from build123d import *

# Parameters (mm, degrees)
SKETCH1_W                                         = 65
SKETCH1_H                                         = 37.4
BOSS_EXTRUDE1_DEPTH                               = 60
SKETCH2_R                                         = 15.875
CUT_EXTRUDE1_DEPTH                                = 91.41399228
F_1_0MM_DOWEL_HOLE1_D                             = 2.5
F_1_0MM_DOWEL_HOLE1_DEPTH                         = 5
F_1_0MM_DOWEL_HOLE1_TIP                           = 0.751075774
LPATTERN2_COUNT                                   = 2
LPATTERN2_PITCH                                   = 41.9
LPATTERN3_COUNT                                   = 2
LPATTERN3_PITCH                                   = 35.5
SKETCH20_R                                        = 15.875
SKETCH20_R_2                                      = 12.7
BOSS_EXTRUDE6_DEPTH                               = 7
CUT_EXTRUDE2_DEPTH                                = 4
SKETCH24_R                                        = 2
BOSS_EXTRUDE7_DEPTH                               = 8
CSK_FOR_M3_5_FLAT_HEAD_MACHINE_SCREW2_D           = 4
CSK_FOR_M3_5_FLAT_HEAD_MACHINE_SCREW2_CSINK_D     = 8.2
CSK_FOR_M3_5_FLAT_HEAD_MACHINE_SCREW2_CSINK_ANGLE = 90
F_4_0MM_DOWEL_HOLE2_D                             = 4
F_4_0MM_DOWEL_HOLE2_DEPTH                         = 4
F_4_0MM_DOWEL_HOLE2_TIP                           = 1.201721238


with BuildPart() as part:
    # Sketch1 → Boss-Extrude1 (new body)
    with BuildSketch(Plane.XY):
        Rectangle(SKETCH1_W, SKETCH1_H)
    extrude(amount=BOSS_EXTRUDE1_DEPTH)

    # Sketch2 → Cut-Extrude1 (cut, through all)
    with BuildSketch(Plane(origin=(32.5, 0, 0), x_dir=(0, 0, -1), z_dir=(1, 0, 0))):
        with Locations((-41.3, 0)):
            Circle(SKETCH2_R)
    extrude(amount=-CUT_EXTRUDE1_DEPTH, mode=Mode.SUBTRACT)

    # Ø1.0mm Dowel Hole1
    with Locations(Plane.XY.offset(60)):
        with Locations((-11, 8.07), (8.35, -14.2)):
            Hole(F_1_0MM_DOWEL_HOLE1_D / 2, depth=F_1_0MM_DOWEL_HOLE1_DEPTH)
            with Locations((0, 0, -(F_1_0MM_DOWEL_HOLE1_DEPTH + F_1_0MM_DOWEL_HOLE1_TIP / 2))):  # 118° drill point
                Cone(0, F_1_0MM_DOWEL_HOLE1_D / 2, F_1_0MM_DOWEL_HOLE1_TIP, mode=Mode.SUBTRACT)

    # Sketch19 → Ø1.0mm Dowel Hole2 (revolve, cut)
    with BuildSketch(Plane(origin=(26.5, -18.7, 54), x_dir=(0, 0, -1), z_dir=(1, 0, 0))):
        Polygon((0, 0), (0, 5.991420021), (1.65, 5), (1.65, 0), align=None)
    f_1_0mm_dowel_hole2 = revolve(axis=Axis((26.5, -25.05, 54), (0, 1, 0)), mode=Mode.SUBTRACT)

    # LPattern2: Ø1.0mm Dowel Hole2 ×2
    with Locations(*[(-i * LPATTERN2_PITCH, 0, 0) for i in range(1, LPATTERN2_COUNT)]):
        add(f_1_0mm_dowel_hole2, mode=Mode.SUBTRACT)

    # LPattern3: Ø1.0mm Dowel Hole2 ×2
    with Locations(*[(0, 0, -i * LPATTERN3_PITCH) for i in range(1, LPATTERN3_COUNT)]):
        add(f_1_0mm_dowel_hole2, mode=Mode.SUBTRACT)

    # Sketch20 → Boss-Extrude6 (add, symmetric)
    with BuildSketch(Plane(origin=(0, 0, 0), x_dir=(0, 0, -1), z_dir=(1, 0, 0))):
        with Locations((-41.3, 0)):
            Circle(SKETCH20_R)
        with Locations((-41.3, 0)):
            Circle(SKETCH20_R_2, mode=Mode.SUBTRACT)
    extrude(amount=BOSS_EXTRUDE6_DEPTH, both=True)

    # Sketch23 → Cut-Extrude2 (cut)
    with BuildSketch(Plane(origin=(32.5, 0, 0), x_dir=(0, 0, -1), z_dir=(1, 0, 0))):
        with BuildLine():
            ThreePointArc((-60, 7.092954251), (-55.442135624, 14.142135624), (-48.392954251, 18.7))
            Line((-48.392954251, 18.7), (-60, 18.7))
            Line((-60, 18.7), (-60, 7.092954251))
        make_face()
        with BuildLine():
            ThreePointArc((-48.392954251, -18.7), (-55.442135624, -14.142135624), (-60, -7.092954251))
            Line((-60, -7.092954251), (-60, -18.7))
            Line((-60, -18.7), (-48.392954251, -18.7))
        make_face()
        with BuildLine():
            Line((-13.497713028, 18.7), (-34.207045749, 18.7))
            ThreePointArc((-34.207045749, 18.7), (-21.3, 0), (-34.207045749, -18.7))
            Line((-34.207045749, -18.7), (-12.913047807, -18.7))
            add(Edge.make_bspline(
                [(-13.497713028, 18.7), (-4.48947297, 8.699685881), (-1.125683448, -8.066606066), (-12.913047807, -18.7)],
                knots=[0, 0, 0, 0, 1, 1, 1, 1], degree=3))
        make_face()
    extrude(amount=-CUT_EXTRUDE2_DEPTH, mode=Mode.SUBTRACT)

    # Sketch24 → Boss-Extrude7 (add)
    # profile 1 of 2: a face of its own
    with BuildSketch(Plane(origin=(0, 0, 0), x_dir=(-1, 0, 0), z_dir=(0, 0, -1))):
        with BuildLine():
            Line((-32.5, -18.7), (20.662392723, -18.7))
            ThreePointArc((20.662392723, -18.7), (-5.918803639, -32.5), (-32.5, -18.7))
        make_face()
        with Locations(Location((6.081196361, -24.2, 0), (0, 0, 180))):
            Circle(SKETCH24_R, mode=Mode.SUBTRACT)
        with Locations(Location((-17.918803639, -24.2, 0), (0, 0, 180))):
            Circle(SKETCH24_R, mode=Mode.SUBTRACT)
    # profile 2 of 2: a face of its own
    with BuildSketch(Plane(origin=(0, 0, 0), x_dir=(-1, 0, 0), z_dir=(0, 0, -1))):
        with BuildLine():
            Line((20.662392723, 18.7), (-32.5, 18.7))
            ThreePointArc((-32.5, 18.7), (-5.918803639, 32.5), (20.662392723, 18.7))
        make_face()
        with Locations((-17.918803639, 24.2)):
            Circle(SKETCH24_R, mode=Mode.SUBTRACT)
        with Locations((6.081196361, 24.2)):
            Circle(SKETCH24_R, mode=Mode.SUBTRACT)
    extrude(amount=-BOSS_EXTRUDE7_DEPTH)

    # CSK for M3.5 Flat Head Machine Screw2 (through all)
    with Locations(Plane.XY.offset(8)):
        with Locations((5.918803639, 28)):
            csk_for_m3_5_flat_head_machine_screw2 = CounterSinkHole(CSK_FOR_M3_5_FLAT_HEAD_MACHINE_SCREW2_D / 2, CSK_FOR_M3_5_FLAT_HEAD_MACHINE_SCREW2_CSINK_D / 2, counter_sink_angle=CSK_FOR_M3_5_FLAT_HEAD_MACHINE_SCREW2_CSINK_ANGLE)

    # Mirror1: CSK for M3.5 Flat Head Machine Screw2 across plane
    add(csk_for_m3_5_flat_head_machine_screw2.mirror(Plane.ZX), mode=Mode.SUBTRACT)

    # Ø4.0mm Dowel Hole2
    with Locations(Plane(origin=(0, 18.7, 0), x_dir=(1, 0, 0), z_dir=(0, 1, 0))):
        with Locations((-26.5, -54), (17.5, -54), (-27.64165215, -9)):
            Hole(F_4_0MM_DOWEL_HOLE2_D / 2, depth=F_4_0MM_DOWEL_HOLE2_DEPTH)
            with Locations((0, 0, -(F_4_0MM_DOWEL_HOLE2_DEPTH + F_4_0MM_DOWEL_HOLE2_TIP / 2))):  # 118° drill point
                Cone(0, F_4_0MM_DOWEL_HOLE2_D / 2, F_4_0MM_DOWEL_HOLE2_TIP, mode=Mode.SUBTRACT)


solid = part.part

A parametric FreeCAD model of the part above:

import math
import FreeCAD as App
import Part
import Sketcher
from FreeCAD import Vector
Q = App.Units.Quantity

doc = App.newDocument("Part")
body = doc.addObject("PartDesign::Body", "Body")

sketch1 = doc.addObject("Sketcher::SketchObject", "Sketch")
body.addObject(sketch1)
sketch1.AttachmentSupport = (doc.XY_Plane, [""])
sketch1.MapMode = "FlatFace"
sketch1.addGeometry([
    Part.LineSegment(Vector(-32, 19, 0), Vector(-32, -19, 0)),
    Part.LineSegment(Vector(-32, -19, 0), Vector(32, -19, 0)),
    Part.LineSegment(Vector(32, -19, 0), Vector(32, 19, 0)),
    Part.LineSegment(Vector(32, 19, 0), Vector(-32, 19, 0)),
], False)
sketch1.addConstraint([
    Sketcher.Constraint("Coincident", 0, 2, 1, 1),
    Sketcher.Constraint("Coincident", 1, 2, 2, 1),
    Sketcher.Constraint("Coincident", 2, 2, 3, 1),
    Sketcher.Constraint("Coincident", 3, 2, 0, 1),
    Sketcher.Constraint("Vertical", 0),
    Sketcher.Constraint("Horizontal", 1),
    Sketcher.Constraint("Vertical", 2),
    Sketcher.Constraint("Horizontal", 3),
    Sketcher.Constraint("Symmetric", 0, 2, 2, 2, -1, 1),
    Sketcher.Constraint("DistanceX", 1, 1, 1, 2, 65.0),
    Sketcher.Constraint("DistanceY", 0, 2, 0, 1, 37.4),
])
pad1 = doc.addObject("PartDesign::Pad", "Pad")
body.addObject(pad1)
pad1.Profile = sketch1
pad1.Length = 60

sketch2 = doc.addObject("Sketcher::SketchObject", "Sketch001")
body.addObject(sketch2)
sketch2.AttachmentSupport = (doc.YZ_Plane, [""])
sketch2.MapMode = "FlatFace"
sketch2.AttachmentOffset = App.Placement(Vector(0, 0, 32.5), App.Rotation())
sketch2.addGeometry(Part.Circle(Vector(0, 41, 0), Vector(0, 0, 1), 16), False)
sketch2.addConstraint([
    Sketcher.Constraint("PointOnObject", 0, 3, -2),
    Sketcher.Constraint("Diameter", 0, 31.75),
    Sketcher.Constraint("DistanceY", -1, 1, 0, 3, 41.3),
])
pocket1 = doc.addObject("PartDesign::Pocket", "Pocket")
body.addObject(pocket1)
pocket1.Profile = sketch2
pocket1.Type = "ThroughAll"

sketch3 = doc.addObject("Sketcher::SketchObject", "Sketch002")
body.addObject(sketch3)
sketch3.AttachmentSupport = (doc.XY_Plane, [""])
sketch3.MapMode = "FlatFace"
sketch3.AttachmentOffset = App.Placement(Vector(0, 0, 60), App.Rotation())
sketch3.addGeometry([
    Part.Circle(Vector(-11, 8.1, 0), Vector(0, 0, 1), 1.2),
    Part.Circle(Vector(8.3, -14.2, 0), Vector(0, 0, 1), 1.2),
], False)
sketch3.addConstraint([
    Sketcher.Constraint("Equal", 0, 1),
    Sketcher.Constraint("Diameter", 0, 2.5),
    Sketcher.Constraint("DistanceX", 0, 3, -1, 1, 11.0),
    Sketcher.Constraint("DistanceY", 1, 3, -1, 1, 14.2),
    Sketcher.Constraint("DistanceY", -1, 1, 0, 3, 8.07),
    Sketcher.Constraint("DistanceX", -1, 1, 1, 3, 8.35),
])
doc.recompute()
hole = doc.addObject("PartDesign::Hole", "Hole")
body.addObject(hole)
hole.Profile = sketch3
hole.ThreadType = "None"
hole.Diameter = 2.5
hole.DepthType = "Dimension"
hole.Depth = 5
hole.DrillPoint = "Angled"
hole.DrillPointAngle = 118

sketch4 = doc.addObject("Sketcher::SketchObject", "Sketch003")
body.addObject(sketch4)
sketch4.AttachmentSupport = (doc.YZ_Plane, [""])
sketch4.MapMode = "FlatFace"
sketch4.AttachmentOffset = App.Placement(Vector(0, 0, 26.5), App.Rotation())
sketch4.addGeometry([
    Part.LineSegment(Vector(-12.7, 54, 0), Vector(-18.7, 54, 0)),
    Part.LineSegment(Vector(-18.7, 54, 0), Vector(-18.7, 52.4, 0)),
    Part.LineSegment(Vector(-18.7, 52.4, 0), Vector(-13.7, 52.4, 0)),
    Part.LineSegment(Vector(-13.7, 52.4, 0), Vector(-12.7, 54, 0)),
], False)
sketch4.addGeometry(Part.LineSegment(Vector(-18.7, 54, 0), Vector(-12.7, 54, 0)), True)
sketch4.addConstraint([
    Sketcher.Constraint("Coincident", 0, 2, 1, 1),
    Sketcher.Constraint("Coincident", 1, 2, 2, 1),
    Sketcher.Constraint("Coincident", 2, 2, 3, 1),
    Sketcher.Constraint("Coincident", 3, 2, 0, 1),
    Sketcher.Constraint("Horizontal", 0),
    Sketcher.Constraint("Vertical", 1),
    Sketcher.Constraint("Horizontal", 2),
    Sketcher.Constraint("Horizontal", 4),
    Sketcher.Constraint("Coincident", 4, 1, 0, 2),
    Sketcher.Constraint("Equal", 0, 4),
    Sketcher.Constraint("DistanceX", 2, 1, 2, 2, 5.0),
    Sketcher.Constraint("Angle", 3, Q("59 deg")),
    Sketcher.Constraint("DistanceY", -1, 1, 0, 2, 54.0),
    Sketcher.Constraint("DistanceY", 1, 2, 1, 1, 1.65),
    Sketcher.Constraint("DistanceX", 0, 2, -1, 1, 18.7),
])
groove = doc.addObject("PartDesign::Groove", "Groove")
body.addObject(groove)
groove.Profile = sketch4
groove.ReferenceAxis = (sketch4, ["Axis0"])
groove.Angle = 360
doc.recompute()

linearpattern = doc.addObject("PartDesign::LinearPattern", "LinearPattern")
body.addObject(linearpattern)
linearpattern.Originals = [groove]
linearpattern.Direction = (doc.X_Axis, [""])
linearpattern.Mode = "offset"
linearpattern.Offset = 41.9
linearpattern.Occurrences = 2
linearpattern.Reversed = True
body.Tip = linearpattern
doc.recompute()

linearpattern2 = doc.addObject("PartDesign::LinearPattern", "LinearPattern001")
body.addObject(linearpattern2)
linearpattern2.Originals = [groove]
linearpattern2.Direction = (doc.Z_Axis, [""])
linearpattern2.Mode = "offset"
linearpattern2.Offset = 35.5
linearpattern2.Occurrences = 2
linearpattern2.Reversed = True
body.Tip = linearpattern2

sketch5 = doc.addObject("Sketcher::SketchObject", "Sketch004")
body.addObject(sketch5)
sketch5.AttachmentSupport = (doc.YZ_Plane, [""])
sketch5.MapMode = "FlatFace"
sketch5.addGeometry([
    Part.Circle(Vector(0, 41, 0), Vector(0, 0, 1), 16),
    Part.Circle(Vector(0, 41, 0), Vector(0, 0, 1), 13),
], False)
sketch5.addConstraint([
    Sketcher.Constraint("Coincident", 1, 3, 0, 3),
    Sketcher.Constraint("PointOnObject", 0, 3, -2),
    Sketcher.Constraint("Diameter", 1, 25.4),
    Sketcher.Constraint("Diameter", 0, 31.75),
    Sketcher.Constraint("DistanceY", -1, 1, 0, 3, 41.3),
])
pad2 = doc.addObject("PartDesign::Pad", "Pad001")
body.addObject(pad2)
pad2.Profile = sketch5
pad2.Length = 14
pad2.Midplane = True

sketch6 = doc.addObject("Sketcher::SketchObject", "Sketch005")
body.addObject(sketch6)
sketch6.AttachmentSupport = (doc.YZ_Plane, [""])
sketch6.MapMode = "FlatFace"
sketch6.AttachmentOffset = App.Placement(Vector(0, 0, 32.5), App.Rotation())
sketch6.addGeometry([
    Part.ArcOfCircle(Part.Circle(Vector(0, 41.3, 0), Vector(0, 0, 1), 20), math.radians(20.771855), math.radians(69.228145)),
    Part.LineSegment(Vector(18.7, 48.392954, 0), Vector(18.7, 60, 0)),
    Part.LineSegment(Vector(18.7, 60, 0), Vector(7.092954, 60, 0)),
    Part.ArcOfCircle(Part.Circle(Vector(0, 41.3, 0), Vector(0, 0, 1), 20), math.radians(110.771855), math.radians(159.228145)),
    Part.LineSegment(Vector(-7.092954, 60, 0), Vector(-18.7, 60, 0)),
    Part.LineSegment(Vector(-18.7, 60, 0), Vector(-18.7, 48.392954, 0)),
    Part.LineSegment(Vector(18.7, 13.497713, 0), Vector(18.7, 34.207046, 0)),
    Part.ArcOfCircle(Part.Circle(Vector(0, 41.3, 0), Vector(0, 0, 1), 20), math.radians(-159.228145), math.radians(-20.771855)),
    Part.LineSegment(Vector(-18.7, 34.207046, 0), Vector(-18.7, 12.913048, 0)),
    Part.BSplineCurve([Vector(18.7, 13.497713, 0), Vector(8.699686, 4.489473, 0), Vector(-8.066606, 1.125683, 0), Vector(-18.7, 12.913048, 0)], [4, 4], [0, 1], False, 3, [1, 1, 1, 1], False),
], False)
sketch6.addConstraint([
    Sketcher.Constraint("Block", 9),
    Sketcher.Constraint("Coincident", 0, 1, 1, 1),
    Sketcher.Constraint("Coincident", 1, 2, 2, 1),
    Sketcher.Constraint("Coincident", 2, 2, 0, 2),
    Sketcher.Constraint("Coincident", 3, 1, 4, 1),
    Sketcher.Constraint("Coincident", 4, 2, 5, 1),
    Sketcher.Constraint("Coincident", 5, 2, 3, 2),
    Sketcher.Constraint("Coincident", 6, 2, 7, 2),
    Sketcher.Constraint("Coincident", 7, 1, 8, 1),
    Sketcher.Constraint("Coincident", 8, 2, 9, 2),
    Sketcher.Constraint("Coincident", 9, 1, 6, 1),
    Sketcher.Constraint("Vertical", 1),
    Sketcher.Constraint("Horizontal", 2),
    Sketcher.Constraint("Horizontal", 4),
    Sketcher.Constraint("Vertical", 5),
    Sketcher.Constraint("Vertical", 6),
    Sketcher.Constraint("Vertical", 8),
    Sketcher.Constraint("Coincident", 3, 3, 0, 3),
    Sketcher.Constraint("Coincident", 7, 3, 0, 3),
    Sketcher.Constraint("Equal", 0, 3),
    Sketcher.Constraint("Equal", 3, 7),
    Sketcher.Constraint("Symmetric", 2, 2, 3, 1, -2),
    Sketcher.Constraint("Horizontal", 0, 1, 5, 2),
    Sketcher.Constraint("Vertical", 1, 2, 6, 2),
    Sketcher.Constraint("Equal", 4, 1),
    Sketcher.Constraint("Radius", 0, 20.0),
    Sketcher.Constraint("DistanceY", -1, 1, 1, 2, 60.0),
])
pocket2 = doc.addObject("PartDesign::Pocket", "Pocket001")
body.addObject(pocket2)
pocket2.Profile = sketch6
pocket2.Length = 4

sketch7 = doc.addObject("Sketcher::SketchObject", "Sketch006")
body.addObject(sketch7)
sketch7.AttachmentSupport = (doc.XY_Plane, [""])
sketch7.MapMode = "FlatFace"
sketch7.addGeometry([
    Part.LineSegment(Vector(-20.7, -18.7, 0), Vector(32.5, -18.7, 0)),
    Part.ArcOfCircle(Part.Circle(Vector(5.9, 0, 0), Vector(0, 0, 1), 32.5), math.radians(-145), math.radians(-35)),
    Part.Circle(Vector(-6.1, -24.2, 0), Vector(0, 0, 1), 2),
    Part.Circle(Vector(17.9, -24.2, 0), Vector(0, 0, 1), 2),
    Part.LineSegment(Vector(32.5, 18.7, 0), Vector(-20.7, 18.7, 0)),
    Part.ArcOfCircle(Part.Circle(Vector(5.9, 0, 0), Vector(0, 0, 1), 32.5), math.radians(35), math.radians(145)),
    Part.Circle(Vector(-6.1, 24.2, 0), Vector(0, 0, 1), 2),
    Part.Circle(Vector(17.9, 24.2, 0), Vector(0, 0, 1), 2),
], False)
sketch7.addConstraint([
    Sketcher.Constraint("Coincident", 0, 1, 1, 1),
    Sketcher.Constraint("Coincident", 1, 2, 0, 2),
    Sketcher.Constraint("Coincident", 4, 1, 5, 1),
    Sketcher.Constraint("Coincident", 5, 2, 4, 2),
    Sketcher.Constraint("Horizontal", 0),
    Sketcher.Constraint("Horizontal", 4),
    Sketcher.Constraint("Coincident", 5, 3, 1, 3),
    Sketcher.Constraint("Equal", 2, 3),
    Sketcher.Constraint("Equal", 1, 5),
    Sketcher.Constraint("Equal", 3, 6),
    Sketcher.Constraint("Equal", 6, 7),
    Sketcher.Constraint("Symmetric", 2, 3, 6, 3, -1),
    Sketcher.Constraint("Symmetric", 3, 3, 7, 3, -1),
    Sketcher.Constraint("Symmetric", 1, 2, 4, 1, -1),
    Sketcher.Constraint("Horizontal", 2, 3, 3, 3),
    Sketcher.Constraint("Diameter", 2, 4.0),
    Sketcher.Constraint("Radius", 1, 32.5),
    Sketcher.Constraint("DistanceX", 2, 3, 1, 3, 12.0),
    Sketcher.Constraint("DistanceX", 2, 3, 3, 3, 24.0),
    Sketcher.Constraint("DistanceY", 2, 3, -1, 1, 24.2),
    Sketcher.Constraint("DistanceY", 0, 1, -1, 1, 18.7),
    Sketcher.Constraint("DistanceX", -1, 1, 1, 2, 32.5),
])
pad3 = doc.addObject("PartDesign::Pad", "Pad002")
body.addObject(pad3)
pad3.Profile = sketch7
pad3.Length = 8

sketch8 = doc.addObject("Sketcher::SketchObject", "Sketch007")
body.addObject(sketch8)
sketch8.AttachmentSupport = (doc.XY_Plane, [""])
sketch8.MapMode = "FlatFace"
sketch8.AttachmentOffset = App.Placement(Vector(0, 0, 8), App.Rotation())
sketch8.addGeometry(Part.Circle(Vector(5.9, 28, 0), Vector(0, 0, 1), 2), False)
sketch8.addConstraint([
    Sketcher.Constraint("Diameter", 0, 4.0),
    Sketcher.Constraint("DistanceY", -1, 1, 0, 3, 28.0),
    Sketcher.Constraint("DistanceX", -1, 1, 0, 3, 5.918804),
])
doc.recompute()
hole2 = doc.addObject("PartDesign::Hole", "Hole001")
body.addObject(hole2)
hole2.Profile = sketch8
hole2.ThreadType = "None"
hole2.Diameter = 4
hole2.DepthType = "ThroughAll"
hole2.HoleCutType = "Countersink"
hole2.HoleCutDiameter = 8.2
hole2.HoleCutCountersinkAngle = 90
doc.recompute()

mirrored = doc.addObject("PartDesign::Mirrored", "Mirrored")
body.addObject(mirrored)
mirrored.Originals = [hole2]
mirrored.MirrorPlane = (doc.XZ_Plane, [""])
body.Tip = mirrored

sketch9 = doc.addObject("Sketcher::SketchObject", "Sketch008")
body.addObject(sketch9)
sketch9.AttachmentSupport = (doc.XZ_Plane, [""])
sketch9.MapMode = "FlatFace"
sketch9.AttachmentOffset = App.Placement(Vector(0, 0, -18.7), App.Rotation())
sketch9.addGeometry([
    Part.Circle(Vector(-26.5, 54, 0), Vector(0, 0, 1), 2),
    Part.Circle(Vector(17.5, 54, 0), Vector(0, 0, 1), 2),
    Part.Circle(Vector(-27.6, 9, 0), Vector(0, 0, 1), 2),
], False)
sketch9.addConstraint([
    Sketcher.Constraint("Equal", 0, 1),
    Sketcher.Constraint("Equal", 1, 2),
    Sketcher.Constraint("Horizontal", 0, 3, 1, 3),
    Sketcher.Constraint("Diameter", 0, 4.0),
    Sketcher.Constraint("DistanceY", -1, 1, 0, 3, 54.0),
    Sketcher.Constraint("DistanceY", -1, 1, 2, 3, 9.0),
    Sketcher.Constraint("DistanceX", 0, 3, 1, 3, 44.0),
    Sketcher.Constraint("DistanceX", 0, 3, -1, 1, 26.5),
    Sketcher.Constraint("DistanceX", 2, 3, -1, 1, 27.641652),
])
doc.recompute()
hole3 = doc.addObject("PartDesign::Hole", "Hole002")
body.addObject(hole3)
hole3.Profile = sketch9
hole3.ThreadType = "None"
hole3.Diameter = 4
hole3.DepthType = "Dimension"
hole3.Depth = 4
hole3.DrillPoint = "Angled"
hole3.DrillPointAngle = 118
hole3.Reversed = True

doc.recompute()
